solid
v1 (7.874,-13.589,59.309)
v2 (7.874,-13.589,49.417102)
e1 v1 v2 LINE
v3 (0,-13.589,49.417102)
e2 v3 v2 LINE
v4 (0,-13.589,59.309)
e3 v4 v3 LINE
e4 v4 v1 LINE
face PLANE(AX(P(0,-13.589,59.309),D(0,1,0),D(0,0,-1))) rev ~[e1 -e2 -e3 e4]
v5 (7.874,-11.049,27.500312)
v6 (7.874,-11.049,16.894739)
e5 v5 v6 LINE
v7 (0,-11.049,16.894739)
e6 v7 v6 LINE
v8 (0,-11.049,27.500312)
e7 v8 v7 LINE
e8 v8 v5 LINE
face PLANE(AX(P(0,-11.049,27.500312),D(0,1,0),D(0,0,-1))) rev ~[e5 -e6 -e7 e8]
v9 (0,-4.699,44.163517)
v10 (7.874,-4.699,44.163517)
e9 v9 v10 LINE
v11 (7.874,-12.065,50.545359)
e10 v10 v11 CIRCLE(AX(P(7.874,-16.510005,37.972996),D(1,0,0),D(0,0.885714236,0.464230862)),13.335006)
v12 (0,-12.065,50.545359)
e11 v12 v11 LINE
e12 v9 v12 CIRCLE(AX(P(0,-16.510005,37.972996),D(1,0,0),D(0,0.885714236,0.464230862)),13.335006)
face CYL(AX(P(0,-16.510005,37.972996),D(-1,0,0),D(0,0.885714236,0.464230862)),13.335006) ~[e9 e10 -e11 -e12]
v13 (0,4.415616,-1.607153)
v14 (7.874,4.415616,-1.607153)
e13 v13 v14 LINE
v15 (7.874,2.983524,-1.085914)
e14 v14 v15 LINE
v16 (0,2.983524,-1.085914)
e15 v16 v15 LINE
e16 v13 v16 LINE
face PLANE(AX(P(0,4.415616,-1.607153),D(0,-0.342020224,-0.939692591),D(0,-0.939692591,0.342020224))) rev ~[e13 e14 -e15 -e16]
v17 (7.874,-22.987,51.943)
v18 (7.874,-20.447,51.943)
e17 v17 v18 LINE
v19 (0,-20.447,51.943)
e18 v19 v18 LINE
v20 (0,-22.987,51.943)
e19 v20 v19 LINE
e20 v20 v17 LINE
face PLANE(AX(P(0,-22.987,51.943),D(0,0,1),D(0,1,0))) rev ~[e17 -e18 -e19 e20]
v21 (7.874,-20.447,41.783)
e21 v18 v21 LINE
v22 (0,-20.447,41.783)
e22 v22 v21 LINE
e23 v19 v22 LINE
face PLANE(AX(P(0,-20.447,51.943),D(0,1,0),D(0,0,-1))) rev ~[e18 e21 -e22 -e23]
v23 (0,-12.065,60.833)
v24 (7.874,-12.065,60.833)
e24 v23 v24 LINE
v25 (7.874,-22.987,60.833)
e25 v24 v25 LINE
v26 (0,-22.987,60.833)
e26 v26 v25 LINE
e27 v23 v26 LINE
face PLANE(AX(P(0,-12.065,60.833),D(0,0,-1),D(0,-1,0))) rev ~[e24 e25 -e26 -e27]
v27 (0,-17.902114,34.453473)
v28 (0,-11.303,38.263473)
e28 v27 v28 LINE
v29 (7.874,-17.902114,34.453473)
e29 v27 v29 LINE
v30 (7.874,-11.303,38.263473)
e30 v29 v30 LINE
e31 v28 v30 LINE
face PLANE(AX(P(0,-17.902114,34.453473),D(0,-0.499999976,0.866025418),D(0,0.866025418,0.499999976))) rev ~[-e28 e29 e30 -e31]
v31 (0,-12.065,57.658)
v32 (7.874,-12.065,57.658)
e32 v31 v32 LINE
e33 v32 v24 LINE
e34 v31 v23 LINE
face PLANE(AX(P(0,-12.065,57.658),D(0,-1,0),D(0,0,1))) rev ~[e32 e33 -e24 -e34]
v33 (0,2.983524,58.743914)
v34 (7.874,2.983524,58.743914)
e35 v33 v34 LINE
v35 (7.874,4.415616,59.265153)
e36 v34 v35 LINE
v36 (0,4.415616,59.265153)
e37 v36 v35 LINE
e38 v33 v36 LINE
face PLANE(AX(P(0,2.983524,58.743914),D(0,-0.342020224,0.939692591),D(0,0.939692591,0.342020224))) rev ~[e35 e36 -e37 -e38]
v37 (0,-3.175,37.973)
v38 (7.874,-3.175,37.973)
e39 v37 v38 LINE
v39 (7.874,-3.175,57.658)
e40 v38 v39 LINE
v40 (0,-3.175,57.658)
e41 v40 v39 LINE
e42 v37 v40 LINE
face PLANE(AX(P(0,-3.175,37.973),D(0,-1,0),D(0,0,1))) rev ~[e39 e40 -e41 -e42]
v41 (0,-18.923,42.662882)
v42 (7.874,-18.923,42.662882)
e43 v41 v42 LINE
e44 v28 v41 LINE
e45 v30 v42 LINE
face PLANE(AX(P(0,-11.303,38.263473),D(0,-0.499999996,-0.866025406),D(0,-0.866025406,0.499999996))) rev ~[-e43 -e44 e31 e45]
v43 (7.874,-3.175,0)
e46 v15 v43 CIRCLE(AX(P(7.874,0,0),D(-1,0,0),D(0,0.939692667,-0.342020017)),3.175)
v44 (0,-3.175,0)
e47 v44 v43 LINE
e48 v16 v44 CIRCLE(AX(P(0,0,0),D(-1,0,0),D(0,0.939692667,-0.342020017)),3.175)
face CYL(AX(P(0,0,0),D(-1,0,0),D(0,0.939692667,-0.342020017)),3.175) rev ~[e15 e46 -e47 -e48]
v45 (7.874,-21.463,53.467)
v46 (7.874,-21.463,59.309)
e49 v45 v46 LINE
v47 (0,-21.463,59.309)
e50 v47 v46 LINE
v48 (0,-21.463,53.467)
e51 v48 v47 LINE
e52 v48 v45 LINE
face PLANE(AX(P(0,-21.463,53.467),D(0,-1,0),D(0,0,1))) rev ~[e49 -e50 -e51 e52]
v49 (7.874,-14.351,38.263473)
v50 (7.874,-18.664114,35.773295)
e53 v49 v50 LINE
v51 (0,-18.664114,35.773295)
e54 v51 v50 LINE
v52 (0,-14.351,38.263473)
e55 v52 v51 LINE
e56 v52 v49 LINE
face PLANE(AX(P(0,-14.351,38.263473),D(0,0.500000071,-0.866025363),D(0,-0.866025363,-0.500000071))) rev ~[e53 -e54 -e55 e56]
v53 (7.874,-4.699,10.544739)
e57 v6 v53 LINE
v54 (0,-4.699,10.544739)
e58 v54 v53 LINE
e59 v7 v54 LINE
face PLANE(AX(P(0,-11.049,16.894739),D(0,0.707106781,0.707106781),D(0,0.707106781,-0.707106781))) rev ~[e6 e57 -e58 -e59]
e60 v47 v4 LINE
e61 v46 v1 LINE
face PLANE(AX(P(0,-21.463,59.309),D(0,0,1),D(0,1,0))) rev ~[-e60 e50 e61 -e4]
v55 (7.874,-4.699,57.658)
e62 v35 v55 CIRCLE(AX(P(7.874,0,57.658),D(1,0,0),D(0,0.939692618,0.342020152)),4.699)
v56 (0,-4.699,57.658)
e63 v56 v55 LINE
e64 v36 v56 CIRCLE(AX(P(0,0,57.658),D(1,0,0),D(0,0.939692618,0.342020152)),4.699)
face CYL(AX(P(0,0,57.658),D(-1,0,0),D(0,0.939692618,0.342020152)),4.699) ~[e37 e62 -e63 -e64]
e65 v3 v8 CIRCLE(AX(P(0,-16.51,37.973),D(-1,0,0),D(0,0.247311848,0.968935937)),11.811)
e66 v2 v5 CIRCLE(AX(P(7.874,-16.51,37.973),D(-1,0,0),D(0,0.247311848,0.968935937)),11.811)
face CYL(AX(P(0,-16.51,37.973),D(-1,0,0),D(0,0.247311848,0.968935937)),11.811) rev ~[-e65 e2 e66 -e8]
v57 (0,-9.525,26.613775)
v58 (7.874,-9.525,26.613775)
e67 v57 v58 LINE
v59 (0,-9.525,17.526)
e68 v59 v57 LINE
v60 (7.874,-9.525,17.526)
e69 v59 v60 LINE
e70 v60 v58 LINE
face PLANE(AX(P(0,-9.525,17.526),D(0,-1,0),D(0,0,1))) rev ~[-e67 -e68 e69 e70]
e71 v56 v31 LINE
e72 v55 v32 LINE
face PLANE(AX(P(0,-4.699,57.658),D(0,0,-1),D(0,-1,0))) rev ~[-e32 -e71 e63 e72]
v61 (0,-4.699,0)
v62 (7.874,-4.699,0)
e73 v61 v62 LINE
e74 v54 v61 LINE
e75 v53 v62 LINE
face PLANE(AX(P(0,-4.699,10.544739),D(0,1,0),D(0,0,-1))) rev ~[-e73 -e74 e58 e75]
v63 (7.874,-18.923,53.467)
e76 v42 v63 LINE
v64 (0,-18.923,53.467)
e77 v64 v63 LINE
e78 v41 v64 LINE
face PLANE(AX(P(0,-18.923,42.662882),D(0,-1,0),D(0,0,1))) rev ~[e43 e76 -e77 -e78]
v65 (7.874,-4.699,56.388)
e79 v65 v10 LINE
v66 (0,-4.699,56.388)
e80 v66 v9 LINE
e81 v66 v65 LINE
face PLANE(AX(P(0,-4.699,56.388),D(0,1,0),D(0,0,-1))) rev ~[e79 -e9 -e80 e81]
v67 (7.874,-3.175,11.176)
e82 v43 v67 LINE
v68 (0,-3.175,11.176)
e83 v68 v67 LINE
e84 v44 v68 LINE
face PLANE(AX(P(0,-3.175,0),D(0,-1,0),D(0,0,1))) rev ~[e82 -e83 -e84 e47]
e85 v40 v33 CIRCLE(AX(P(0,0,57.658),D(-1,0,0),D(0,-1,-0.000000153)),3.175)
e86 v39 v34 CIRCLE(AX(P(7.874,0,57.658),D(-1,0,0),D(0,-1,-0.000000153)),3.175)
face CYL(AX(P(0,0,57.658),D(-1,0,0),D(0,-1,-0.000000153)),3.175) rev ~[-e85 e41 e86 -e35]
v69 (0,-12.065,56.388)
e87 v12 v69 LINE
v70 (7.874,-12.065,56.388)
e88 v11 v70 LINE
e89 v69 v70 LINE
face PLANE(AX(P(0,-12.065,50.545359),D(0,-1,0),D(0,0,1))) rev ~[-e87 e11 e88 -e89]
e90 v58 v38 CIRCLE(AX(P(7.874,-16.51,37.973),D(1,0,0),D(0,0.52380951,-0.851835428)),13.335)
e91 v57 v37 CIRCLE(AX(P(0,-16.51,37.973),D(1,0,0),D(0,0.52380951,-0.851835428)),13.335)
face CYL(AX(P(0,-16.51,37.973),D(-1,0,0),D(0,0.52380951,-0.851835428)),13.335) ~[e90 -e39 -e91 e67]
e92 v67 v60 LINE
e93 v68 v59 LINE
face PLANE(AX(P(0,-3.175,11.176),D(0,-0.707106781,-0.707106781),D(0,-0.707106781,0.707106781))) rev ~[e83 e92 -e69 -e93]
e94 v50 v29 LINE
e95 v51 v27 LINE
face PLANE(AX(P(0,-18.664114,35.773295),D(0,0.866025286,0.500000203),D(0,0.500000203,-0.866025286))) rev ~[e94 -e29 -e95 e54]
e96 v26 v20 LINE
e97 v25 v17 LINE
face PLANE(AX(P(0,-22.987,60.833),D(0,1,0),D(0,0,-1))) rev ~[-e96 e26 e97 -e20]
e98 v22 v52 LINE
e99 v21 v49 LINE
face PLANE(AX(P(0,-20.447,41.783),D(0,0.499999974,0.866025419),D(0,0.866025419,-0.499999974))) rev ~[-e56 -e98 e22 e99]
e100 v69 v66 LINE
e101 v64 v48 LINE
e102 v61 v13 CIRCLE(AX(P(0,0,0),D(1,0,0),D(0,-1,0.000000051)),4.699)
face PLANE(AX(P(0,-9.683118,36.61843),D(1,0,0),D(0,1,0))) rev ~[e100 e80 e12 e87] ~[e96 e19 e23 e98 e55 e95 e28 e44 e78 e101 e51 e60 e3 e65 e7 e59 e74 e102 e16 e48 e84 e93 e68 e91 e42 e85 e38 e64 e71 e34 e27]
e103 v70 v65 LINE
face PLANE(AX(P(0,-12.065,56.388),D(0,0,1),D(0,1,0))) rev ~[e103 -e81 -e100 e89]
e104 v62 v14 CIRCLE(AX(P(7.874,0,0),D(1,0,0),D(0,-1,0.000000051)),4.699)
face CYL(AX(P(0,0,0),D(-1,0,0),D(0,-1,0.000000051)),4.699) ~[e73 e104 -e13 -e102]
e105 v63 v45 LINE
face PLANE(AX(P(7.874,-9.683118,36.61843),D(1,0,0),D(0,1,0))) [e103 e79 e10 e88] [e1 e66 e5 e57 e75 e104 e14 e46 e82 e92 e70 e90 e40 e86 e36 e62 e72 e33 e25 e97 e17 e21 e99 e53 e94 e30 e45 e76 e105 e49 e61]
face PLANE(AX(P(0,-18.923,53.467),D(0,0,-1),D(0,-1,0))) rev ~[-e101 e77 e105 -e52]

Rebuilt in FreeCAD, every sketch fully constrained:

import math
import FreeCAD as App
import Part
import Sketcher
Q = App.Units.Quantity

doc = App.newDocument("Part")
body = doc.addObject("PartDesign::Body", "Body")

sketch1 = body.newObject("Sketcher::SketchObject", "Sketch")
sketch1.AttachmentSupport = (doc.getObject("YZ_Plane"), [""])
sketch1.MapMode = "FlatFace"
sketch1.addGeometry([
    Part.ArcOfCircle(Part.Circle(App.Vector(0, 0, 0), App.Vector(0, 0, 1), 3.2), math.radians(180), math.radians(340)),
    Part.LineSegment(App.Vector(-3.2, 0, 0), App.Vector(-3.2, 11.2, 0)),
    Part.LineSegment(App.Vector(-3.2, 11.2, 0), App.Vector(-9.5, 17.5, 0)),
    Part.LineSegment(App.Vector(-9.5, 17.5, 0), App.Vector(-9.5, 26.6, 0)),
    Part.ArcOfCircle(Part.Circle(App.Vector(-16.5, 38, 0), App.Vector(0, 0, 1), 13.3), math.radians(-58), math.radians(0)),
    Part.LineSegment(App.Vector(-3.2, 38, 0), App.Vector(-3.2, 57.7, 0)),
    Part.ArcOfCircle(Part.Circle(App.Vector(0, 57.7, 0), App.Vector(0, 0, 1), 3.2), math.radians(20), math.radians(180)),
    Part.LineSegment(App.Vector(3, 58.7, 0), App.Vector(4.4, 59.3, 0)),
    Part.ArcOfCircle(Part.Circle(App.Vector(0, 57.7, 0), App.Vector(0, 0, 1), 4.7), math.radians(20), math.radians(180)),
    Part.LineSegment(App.Vector(-4.7, 57.7, 0), App.Vector(-12.1, 57.7, 0)),
    Part.LineSegment(App.Vector(-12.1, 57.7, 0), App.Vector(-12.1, 60.8, 0)),
    Part.LineSegment(App.Vector(-12.1, 60.8, 0), App.Vector(-23, 60.8, 0)),
    Part.LineSegment(App.Vector(-23, 60.8, 0), App.Vector(-23, 51.9, 0)),
    Part.LineSegment(App.Vector(-23, 51.9, 0), App.Vector(-20.4, 51.9, 0)),
    Part.LineSegment(App.Vector(-20.4, 51.9, 0), App.Vector(-20.4, 41.8, 0)),
    Part.LineSegment(App.Vector(-20.4, 41.8, 0), App.Vector(-14.4, 38.3, 0)),
    Part.LineSegment(App.Vector(-14.4, 38.3, 0), App.Vector(-18.7, 35.8, 0)),
    Part.LineSegment(App.Vector(-18.7, 35.8, 0), App.Vector(-17.9, 34.5, 0)),
    Part.LineSegment(App.Vector(-17.9, 34.5, 0), App.Vector(-11.3, 38.3, 0)),
    Part.LineSegment(App.Vector(-11.3, 38.3, 0), App.Vector(-18.9, 42.7, 0)),
    Part.LineSegment(App.Vector(-18.9, 42.7, 0), App.Vector(-18.9, 53.5, 0)),
    Part.LineSegment(App.Vector(-18.9, 53.5, 0), App.Vector(-21.5, 53.5, 0)),
    Part.LineSegment(App.Vector(-21.5, 53.5, 0), App.Vector(-21.5, 59.3, 0)),
    Part.LineSegment(App.Vector(-21.5, 59.3, 0), App.Vector(-13.6, 59.3, 0)),
    Part.LineSegment(App.Vector(-13.6, 59.3, 0), App.Vector(-13.6, 49.4, 0)),
    Part.ArcOfCircle(Part.Circle(App.Vector(-16.5, 38, 0), App.Vector(0, 0, 1), 11.8), math.radians(-62), math.radians(76)),
    Part.LineSegment(App.Vector(-11, 27.5, 0), App.Vector(-11, 16.9, 0)),
    Part.LineSegment(App.Vector(-11, 16.9, 0), App.Vector(-4.7, 10.5, 0)),
    Part.LineSegment(App.Vector(-4.7, 10.5, 0), App.Vector(-4.7, 0, 0)),
    Part.ArcOfCircle(Part.Circle(App.Vector(0, 0, 0), App.Vector(0, 0, 1), 4.7), math.radians(180), math.radians(340)),
    Part.LineSegment(App.Vector(4.4, -1.6, 0), App.Vector(3, -1.1, 0)),
    Part.LineSegment(App.Vector(-12.1, 50.5, 0), App.Vector(-12.1, 56.4, 0)),
    Part.LineSegment(App.Vector(-12.1, 56.4, 0), App.Vector(-4.7, 56.4, 0)),
    Part.LineSegment(App.Vector(-4.7, 56.4, 0), App.Vector(-4.7, 44.2, 0)),
    Part.ArcOfCircle(Part.Circle(App.Vector(-16.5, 38, 0), App.Vector(0, 0, 1), 13.3), math.radians(28), math.radians(71)),
], False)
sketch1.addConstraint([
    Sketcher.Constraint("Tangent", 0, 1, 1, 1),
    Sketcher.Constraint("Coincident", 1, 2, 2, 1),
    Sketcher.Constraint("Coincident", 2, 2, 3, 1),
    Sketcher.Constraint("Coincident", 3, 2, 4, 1),
    Sketcher.Constraint("Tangent", 4, 2, 5, 1),
    Sketcher.Constraint("Tangent", 5, 2, 6, 2),
    Sketcher.Constraint("Coincident", 6, 1, 7, 1),
    Sketcher.Constraint("Coincident", 7, 2, 8, 1),
    Sketcher.Constraint("Coincident", 8, 2, 9, 1),
    Sketcher.Constraint("Coincident", 9, 2, 10, 1),
    Sketcher.Constraint("Coincident", 10, 2, 11, 1),
    Sketcher.Constraint("Coincident", 11, 2, 12, 1),
    Sketcher.Constraint("Coincident", 12, 2, 13, 1),
    Sketcher.Constraint("Coincident", 13, 2, 14, 1),
    Sketcher.Constraint("Coincident", 14, 2, 15, 1),
    Sketcher.Constraint("Coincident", 15, 2, 16, 1),
    Sketcher.Constraint("Coincident", 16, 2, 17, 1),
    Sketcher.Constraint("Coincident", 17, 2, 18, 1),
    Sketcher.Constraint("Coincident", 18, 2, 19, 1),
    Sketcher.Constraint("Coincident", 19, 2, 20, 1),
    Sketcher.Constraint("Coincident", 20, 2, 21, 1),
    Sketcher.Constraint("Coincident", 21, 2, 22, 1),
    Sketcher.Constraint("Coincident", 22, 2, 23, 1),
    Sketcher.Constraint("Coincident", 23, 2, 24, 1),
    Sketcher.Constraint("Coincident", 24, 2, 25, 2),
    Sketcher.Constraint("Coincident", 25, 1, 26, 1),
    Sketcher.Constraint("Coincident", 26, 2, 27, 1),
    Sketcher.Constraint("Coincident", 27, 2, 28, 1),
    Sketcher.Constraint("Tangent", 28, 2, 29, 1),
    Sketcher.Constraint("Coincident", 29, 2, 30, 1),
    Sketcher.Constraint("Coincident", 30, 2, 0, 2),
    Sketcher.Constraint("Coincident", 31, 2, 32, 1),
    Sketcher.Constraint("Coincident", 32, 2, 33, 1),
    Sketcher.Constraint("Coincident", 33, 2, 34, 1),
    Sketcher.Constraint("Coincident", 34, 2, 31, 1),
    Sketcher.Constraint("Vertical", 1),
    Sketcher.Constraint("Vertical", 3),
    Sketcher.Constraint("Vertical", 5),
    Sketcher.Constraint("Horizontal", 9),
    Sketcher.Constraint("Vertical", 10),
    Sketcher.Constraint("Horizontal", 11),
    Sketcher.Constraint("Vertical", 12),
    Sketcher.Constraint("Horizontal", 13),
    Sketcher.Constraint("Vertical", 14),
    Sketcher.Constraint("Vertical", 20),
    Sketcher.Constraint("Horizontal", 21),
    Sketcher.Constraint("Vertical", 22),
    Sketcher.Constraint("Horizontal", 23),
    Sketcher.Constraint("Vertical", 24),
    Sketcher.Constraint("Vertical", 26),
    Sketcher.Constraint("Vertical", 28),
    Sketcher.Constraint("Vertical", 31),
    Sketcher.Constraint("Horizontal", 32),
    Sketcher.Constraint("Vertical", 33),
    Sketcher.Constraint("Coincident", 0, 3, -1, 1),
    Sketcher.Constraint("Coincident", 29, 3, -1, 1),
    Sketcher.Constraint("Coincident", 8, 3, 6, 3),
    Sketcher.Constraint("Coincident", 25, 3, 4, 3),
    Sketcher.Constraint("Coincident", 34, 3, 4, 3),
    Sketcher.Constraint("Equal", 0, 6),
    Sketcher.Constraint("Equal", 8, 29),
    Sketcher.Constraint("PointOnObject", 6, 3, -2),
    Sketcher.Constraint("Perpendicular", 16, 17),
    Sketcher.Constraint("Perpendicular", 17, 18),
    Sketcher.Constraint("Parallel", 15, 19),
    Sketcher.Constraint("Parallel", 2, 27),
    Sketcher.Constraint("Horizontal", 5, 2, 8, 2),
    Sketcher.Constraint("Horizontal", 15, 2, 18, 2),
    Sketcher.Constraint("Vertical", 7, 2, 29, 2),
    Sketcher.Constraint("Vertical", 6, 1, 30, 2),
    Sketcher.Constraint("Vertical", 10, 2, 31, 2),
    Sketcher.Constraint("Vertical", 28, 2, 32, 2),
    Sketcher.Constraint("Equal", 13, 21),
    Sketcher.Constraint("Equal", 7, 17),
    Sketcher.Constraint("Equal", 2, 27),
    Sketcher.Constraint("DistanceX", 13, 1, 13, 2, Q("0.1 in")),
    Sketcher.Constraint("DistanceY", 14, 2, 14, 1, Q("0.4 in")),
    Sketcher.Constraint("Angle", 2, Q("135 deg")),
    Sketcher.Constraint("Angle", 7, Q("20.000005 deg")),
    Sketcher.Constraint("Angle", 15, Q("-29.999998 deg")),
    Sketcher.Constraint("Angle", 16, Q("-149.999995 deg")),
    Sketcher.Constraint("Radius", 0, Q("0.125 in")),
    Sketcher.Constraint("Radius", 4, Q("0.525 in")),
    Sketcher.Constraint("Radius", 8, Q("0.185 in")),
    Sketcher.Constraint("Radius", 25, Q("0.465 in")),
    Sketcher.Constraint("Distance", 18, Q("0.3 in")),
    Sketcher.Constraint("DistanceX", 9, 2, 9, 1, Q("0.29 in")),
    Sketcher.Constraint("DistanceX", 11, 2, 11, 1, Q("0.43 in")),
    Sketcher.Constraint("DistanceX", 23, 1, 23, 2, Q("0.31 in")),
    Sketcher.Constraint("DistanceY", 1, 1, 1, 2, Q("0.44 in")),
    Sketcher.Constraint("DistanceY", 12, 2, 12, 1, Q("0.35 in")),
    Sketcher.Constraint("DistanceY", 22, 1, 22, 2, Q("0.23 in")),
    Sketcher.Constraint("DistanceY", 5, 1, 5, 2, Q("0.775 in")),
    Sketcher.Constraint("DistanceY", 10, 1, 10, 2, Q("0.125 in")),
    Sketcher.Constraint("DistanceY", -1, 1, 6, 3, Q("2.27 in")),
    Sketcher.Constraint("DistanceY", -1, 1, 2, 2, Q("0.69 in")),
    Sketcher.Constraint("DistanceY", -1, 1, 31, 2, Q("2.22 in")),
    Sketcher.Constraint("DistanceX", 14, 2, 15, 2, Q("0.24 in")),
    Sketcher.Constraint("DistanceX", 14, 2, 19, 2, Q("0.06 in")),
    Sketcher.Constraint("DistanceY", 13, 2, 20, 2, Q("0.06 in")),
    Sketcher.Constraint("Radius", 34, Q("13.335006 mm")),
    Sketcher.Constraint("DistanceY", 28, 2, 28, 1, Q("10.544739 mm")),
    Sketcher.Constraint("DistanceX", -1, 1, 6, 1, Q("2.983524 mm")),
])
pad1 = body.newObject("PartDesign::Pad", "Pad")
pad1.Profile = sketch1
pad1.Length = Q("0.31 in")

doc.recompute()
